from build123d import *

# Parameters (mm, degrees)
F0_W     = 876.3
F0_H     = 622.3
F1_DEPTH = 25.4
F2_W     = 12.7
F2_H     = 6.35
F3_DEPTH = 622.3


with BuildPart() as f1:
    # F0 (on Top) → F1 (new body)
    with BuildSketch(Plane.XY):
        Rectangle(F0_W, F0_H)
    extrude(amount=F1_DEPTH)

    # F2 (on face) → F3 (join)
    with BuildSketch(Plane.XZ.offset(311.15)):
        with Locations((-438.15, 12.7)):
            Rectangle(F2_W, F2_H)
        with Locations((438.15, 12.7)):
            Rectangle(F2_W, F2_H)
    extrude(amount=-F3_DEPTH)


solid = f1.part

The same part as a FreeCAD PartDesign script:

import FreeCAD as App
import Part
import Sketcher
Q = App.Units.Quantity


def add_polygon(sketch, points):
    """Adds a closed chain of lines whose ends are joined by coincident constraints."""
    first, n = sketch.GeometryCount, len(points)
    for a, b in zip(points, points[1:] + points[:1]):
        sketch.addGeometry(Part.LineSegment(App.Vector(*a, 0), App.Vector(*b, 0)), False)
    for i in range(n):
        sketch.addConstraint(Sketcher.Constraint("Coincident", first + i, 2, first + (i + 1) % n, 1))

doc = App.newDocument("Part")
body = doc.addObject("PartDesign::Body", "Body")

sketch1 = body.newObject("Sketcher::SketchObject", "Sketch")
sketch1.AttachmentSupport = (doc.getObject("XY_Plane"), [""])
sketch1.MapMode = "FlatFace"
add_polygon(sketch1, [(-438, 311), (-438, -311), (438, -311), (438, 311)])
sketch1.addConstraint(Sketcher.Constraint("Vertical", 0))
sketch1.addConstraint(Sketcher.Constraint("Horizontal", 1))
sketch1.addConstraint(Sketcher.Constraint("Vertical", 2))
sketch1.addConstraint(Sketcher.Constraint("Horizontal", 3))
sketch1.addConstraint(Sketcher.Constraint("Symmetric", 0, 2, 2, 2, -1, 1))
sketch1.addConstraint(Sketcher.Constraint("DistanceX", 1, 1, 1, 2, Q("34.5 in")))
sketch1.addConstraint(Sketcher.Constraint("DistanceY", 0, 2, 0, 1, Q("24.5 in")))
pad1 = body.newObject("PartDesign::Pad", "Pad")
pad1.Profile = sketch1
pad1.Length = Q("1 in")

sketch2 = body.newObject("Sketcher::SketchObject", "Sketch001")
sketch2.AttachmentSupport = (doc.getObject("XZ_Plane"), [""])
sketch2.MapMode = "FlatFace"
sketch2.AttachmentOffset = App.Placement(App.Vector(0, 0, 12.25 * 25.4), App.Rotation())
add_polygon(sketch2, [(-444, 16), (-444, 10), (-432, 10), (-432, 16)])
add_polygon(sketch2, [(432, 16), (432, 10), (444, 10), (444, 16)])
sketch2.addConstraint(Sketcher.Constraint("Vertical", 0))
sketch2.addConstraint(Sketcher.Constraint("Horizontal", 1))
sketch2.addConstraint(Sketcher.Constraint("Vertical", 2))
sketch2.addConstraint(Sketcher.Constraint("Horizontal", 3))
sketch2.addConstraint(Sketcher.Constraint("Vertical", 4))
sketch2.addConstraint(Sketcher.Constraint("Horizontal", 5))
sketch2.addConstraint(Sketcher.Constraint("Vertical", 6))
sketch2.addConstraint(Sketcher.Constraint("Horizontal", 7))
sketch2.addConstraint(Sketcher.Constraint("Symmetric", 1, 2, 4, 2, -2))
sketch2.addConstraint(Sketcher.Constraint("Symmetric", 3, 2, 6, 2, -2))
sketch2.addConstraint(Sketcher.Constraint("DistanceX", 1, 1, 1, 2, Q("0.5 in")))
sketch2.addConstraint(Sketcher.Constraint("DistanceX", 1, 2, -1, 1, Q("17 in")))
sketch2.addConstraint(Sketcher.Constraint("DistanceY", 0, 2, 0, 1, Q("0.25 in")))
sketch2.addConstraint(Sketcher.Constraint("DistanceY", -1, 1, 0, 2, Q("0.375 in")))
pad2 = body.newObject("PartDesign::Pad", "Pad001")
pad2.Profile = sketch2
pad2.Length = Q("24.5 in")
pad2.Reversed = True

doc.recompute()
